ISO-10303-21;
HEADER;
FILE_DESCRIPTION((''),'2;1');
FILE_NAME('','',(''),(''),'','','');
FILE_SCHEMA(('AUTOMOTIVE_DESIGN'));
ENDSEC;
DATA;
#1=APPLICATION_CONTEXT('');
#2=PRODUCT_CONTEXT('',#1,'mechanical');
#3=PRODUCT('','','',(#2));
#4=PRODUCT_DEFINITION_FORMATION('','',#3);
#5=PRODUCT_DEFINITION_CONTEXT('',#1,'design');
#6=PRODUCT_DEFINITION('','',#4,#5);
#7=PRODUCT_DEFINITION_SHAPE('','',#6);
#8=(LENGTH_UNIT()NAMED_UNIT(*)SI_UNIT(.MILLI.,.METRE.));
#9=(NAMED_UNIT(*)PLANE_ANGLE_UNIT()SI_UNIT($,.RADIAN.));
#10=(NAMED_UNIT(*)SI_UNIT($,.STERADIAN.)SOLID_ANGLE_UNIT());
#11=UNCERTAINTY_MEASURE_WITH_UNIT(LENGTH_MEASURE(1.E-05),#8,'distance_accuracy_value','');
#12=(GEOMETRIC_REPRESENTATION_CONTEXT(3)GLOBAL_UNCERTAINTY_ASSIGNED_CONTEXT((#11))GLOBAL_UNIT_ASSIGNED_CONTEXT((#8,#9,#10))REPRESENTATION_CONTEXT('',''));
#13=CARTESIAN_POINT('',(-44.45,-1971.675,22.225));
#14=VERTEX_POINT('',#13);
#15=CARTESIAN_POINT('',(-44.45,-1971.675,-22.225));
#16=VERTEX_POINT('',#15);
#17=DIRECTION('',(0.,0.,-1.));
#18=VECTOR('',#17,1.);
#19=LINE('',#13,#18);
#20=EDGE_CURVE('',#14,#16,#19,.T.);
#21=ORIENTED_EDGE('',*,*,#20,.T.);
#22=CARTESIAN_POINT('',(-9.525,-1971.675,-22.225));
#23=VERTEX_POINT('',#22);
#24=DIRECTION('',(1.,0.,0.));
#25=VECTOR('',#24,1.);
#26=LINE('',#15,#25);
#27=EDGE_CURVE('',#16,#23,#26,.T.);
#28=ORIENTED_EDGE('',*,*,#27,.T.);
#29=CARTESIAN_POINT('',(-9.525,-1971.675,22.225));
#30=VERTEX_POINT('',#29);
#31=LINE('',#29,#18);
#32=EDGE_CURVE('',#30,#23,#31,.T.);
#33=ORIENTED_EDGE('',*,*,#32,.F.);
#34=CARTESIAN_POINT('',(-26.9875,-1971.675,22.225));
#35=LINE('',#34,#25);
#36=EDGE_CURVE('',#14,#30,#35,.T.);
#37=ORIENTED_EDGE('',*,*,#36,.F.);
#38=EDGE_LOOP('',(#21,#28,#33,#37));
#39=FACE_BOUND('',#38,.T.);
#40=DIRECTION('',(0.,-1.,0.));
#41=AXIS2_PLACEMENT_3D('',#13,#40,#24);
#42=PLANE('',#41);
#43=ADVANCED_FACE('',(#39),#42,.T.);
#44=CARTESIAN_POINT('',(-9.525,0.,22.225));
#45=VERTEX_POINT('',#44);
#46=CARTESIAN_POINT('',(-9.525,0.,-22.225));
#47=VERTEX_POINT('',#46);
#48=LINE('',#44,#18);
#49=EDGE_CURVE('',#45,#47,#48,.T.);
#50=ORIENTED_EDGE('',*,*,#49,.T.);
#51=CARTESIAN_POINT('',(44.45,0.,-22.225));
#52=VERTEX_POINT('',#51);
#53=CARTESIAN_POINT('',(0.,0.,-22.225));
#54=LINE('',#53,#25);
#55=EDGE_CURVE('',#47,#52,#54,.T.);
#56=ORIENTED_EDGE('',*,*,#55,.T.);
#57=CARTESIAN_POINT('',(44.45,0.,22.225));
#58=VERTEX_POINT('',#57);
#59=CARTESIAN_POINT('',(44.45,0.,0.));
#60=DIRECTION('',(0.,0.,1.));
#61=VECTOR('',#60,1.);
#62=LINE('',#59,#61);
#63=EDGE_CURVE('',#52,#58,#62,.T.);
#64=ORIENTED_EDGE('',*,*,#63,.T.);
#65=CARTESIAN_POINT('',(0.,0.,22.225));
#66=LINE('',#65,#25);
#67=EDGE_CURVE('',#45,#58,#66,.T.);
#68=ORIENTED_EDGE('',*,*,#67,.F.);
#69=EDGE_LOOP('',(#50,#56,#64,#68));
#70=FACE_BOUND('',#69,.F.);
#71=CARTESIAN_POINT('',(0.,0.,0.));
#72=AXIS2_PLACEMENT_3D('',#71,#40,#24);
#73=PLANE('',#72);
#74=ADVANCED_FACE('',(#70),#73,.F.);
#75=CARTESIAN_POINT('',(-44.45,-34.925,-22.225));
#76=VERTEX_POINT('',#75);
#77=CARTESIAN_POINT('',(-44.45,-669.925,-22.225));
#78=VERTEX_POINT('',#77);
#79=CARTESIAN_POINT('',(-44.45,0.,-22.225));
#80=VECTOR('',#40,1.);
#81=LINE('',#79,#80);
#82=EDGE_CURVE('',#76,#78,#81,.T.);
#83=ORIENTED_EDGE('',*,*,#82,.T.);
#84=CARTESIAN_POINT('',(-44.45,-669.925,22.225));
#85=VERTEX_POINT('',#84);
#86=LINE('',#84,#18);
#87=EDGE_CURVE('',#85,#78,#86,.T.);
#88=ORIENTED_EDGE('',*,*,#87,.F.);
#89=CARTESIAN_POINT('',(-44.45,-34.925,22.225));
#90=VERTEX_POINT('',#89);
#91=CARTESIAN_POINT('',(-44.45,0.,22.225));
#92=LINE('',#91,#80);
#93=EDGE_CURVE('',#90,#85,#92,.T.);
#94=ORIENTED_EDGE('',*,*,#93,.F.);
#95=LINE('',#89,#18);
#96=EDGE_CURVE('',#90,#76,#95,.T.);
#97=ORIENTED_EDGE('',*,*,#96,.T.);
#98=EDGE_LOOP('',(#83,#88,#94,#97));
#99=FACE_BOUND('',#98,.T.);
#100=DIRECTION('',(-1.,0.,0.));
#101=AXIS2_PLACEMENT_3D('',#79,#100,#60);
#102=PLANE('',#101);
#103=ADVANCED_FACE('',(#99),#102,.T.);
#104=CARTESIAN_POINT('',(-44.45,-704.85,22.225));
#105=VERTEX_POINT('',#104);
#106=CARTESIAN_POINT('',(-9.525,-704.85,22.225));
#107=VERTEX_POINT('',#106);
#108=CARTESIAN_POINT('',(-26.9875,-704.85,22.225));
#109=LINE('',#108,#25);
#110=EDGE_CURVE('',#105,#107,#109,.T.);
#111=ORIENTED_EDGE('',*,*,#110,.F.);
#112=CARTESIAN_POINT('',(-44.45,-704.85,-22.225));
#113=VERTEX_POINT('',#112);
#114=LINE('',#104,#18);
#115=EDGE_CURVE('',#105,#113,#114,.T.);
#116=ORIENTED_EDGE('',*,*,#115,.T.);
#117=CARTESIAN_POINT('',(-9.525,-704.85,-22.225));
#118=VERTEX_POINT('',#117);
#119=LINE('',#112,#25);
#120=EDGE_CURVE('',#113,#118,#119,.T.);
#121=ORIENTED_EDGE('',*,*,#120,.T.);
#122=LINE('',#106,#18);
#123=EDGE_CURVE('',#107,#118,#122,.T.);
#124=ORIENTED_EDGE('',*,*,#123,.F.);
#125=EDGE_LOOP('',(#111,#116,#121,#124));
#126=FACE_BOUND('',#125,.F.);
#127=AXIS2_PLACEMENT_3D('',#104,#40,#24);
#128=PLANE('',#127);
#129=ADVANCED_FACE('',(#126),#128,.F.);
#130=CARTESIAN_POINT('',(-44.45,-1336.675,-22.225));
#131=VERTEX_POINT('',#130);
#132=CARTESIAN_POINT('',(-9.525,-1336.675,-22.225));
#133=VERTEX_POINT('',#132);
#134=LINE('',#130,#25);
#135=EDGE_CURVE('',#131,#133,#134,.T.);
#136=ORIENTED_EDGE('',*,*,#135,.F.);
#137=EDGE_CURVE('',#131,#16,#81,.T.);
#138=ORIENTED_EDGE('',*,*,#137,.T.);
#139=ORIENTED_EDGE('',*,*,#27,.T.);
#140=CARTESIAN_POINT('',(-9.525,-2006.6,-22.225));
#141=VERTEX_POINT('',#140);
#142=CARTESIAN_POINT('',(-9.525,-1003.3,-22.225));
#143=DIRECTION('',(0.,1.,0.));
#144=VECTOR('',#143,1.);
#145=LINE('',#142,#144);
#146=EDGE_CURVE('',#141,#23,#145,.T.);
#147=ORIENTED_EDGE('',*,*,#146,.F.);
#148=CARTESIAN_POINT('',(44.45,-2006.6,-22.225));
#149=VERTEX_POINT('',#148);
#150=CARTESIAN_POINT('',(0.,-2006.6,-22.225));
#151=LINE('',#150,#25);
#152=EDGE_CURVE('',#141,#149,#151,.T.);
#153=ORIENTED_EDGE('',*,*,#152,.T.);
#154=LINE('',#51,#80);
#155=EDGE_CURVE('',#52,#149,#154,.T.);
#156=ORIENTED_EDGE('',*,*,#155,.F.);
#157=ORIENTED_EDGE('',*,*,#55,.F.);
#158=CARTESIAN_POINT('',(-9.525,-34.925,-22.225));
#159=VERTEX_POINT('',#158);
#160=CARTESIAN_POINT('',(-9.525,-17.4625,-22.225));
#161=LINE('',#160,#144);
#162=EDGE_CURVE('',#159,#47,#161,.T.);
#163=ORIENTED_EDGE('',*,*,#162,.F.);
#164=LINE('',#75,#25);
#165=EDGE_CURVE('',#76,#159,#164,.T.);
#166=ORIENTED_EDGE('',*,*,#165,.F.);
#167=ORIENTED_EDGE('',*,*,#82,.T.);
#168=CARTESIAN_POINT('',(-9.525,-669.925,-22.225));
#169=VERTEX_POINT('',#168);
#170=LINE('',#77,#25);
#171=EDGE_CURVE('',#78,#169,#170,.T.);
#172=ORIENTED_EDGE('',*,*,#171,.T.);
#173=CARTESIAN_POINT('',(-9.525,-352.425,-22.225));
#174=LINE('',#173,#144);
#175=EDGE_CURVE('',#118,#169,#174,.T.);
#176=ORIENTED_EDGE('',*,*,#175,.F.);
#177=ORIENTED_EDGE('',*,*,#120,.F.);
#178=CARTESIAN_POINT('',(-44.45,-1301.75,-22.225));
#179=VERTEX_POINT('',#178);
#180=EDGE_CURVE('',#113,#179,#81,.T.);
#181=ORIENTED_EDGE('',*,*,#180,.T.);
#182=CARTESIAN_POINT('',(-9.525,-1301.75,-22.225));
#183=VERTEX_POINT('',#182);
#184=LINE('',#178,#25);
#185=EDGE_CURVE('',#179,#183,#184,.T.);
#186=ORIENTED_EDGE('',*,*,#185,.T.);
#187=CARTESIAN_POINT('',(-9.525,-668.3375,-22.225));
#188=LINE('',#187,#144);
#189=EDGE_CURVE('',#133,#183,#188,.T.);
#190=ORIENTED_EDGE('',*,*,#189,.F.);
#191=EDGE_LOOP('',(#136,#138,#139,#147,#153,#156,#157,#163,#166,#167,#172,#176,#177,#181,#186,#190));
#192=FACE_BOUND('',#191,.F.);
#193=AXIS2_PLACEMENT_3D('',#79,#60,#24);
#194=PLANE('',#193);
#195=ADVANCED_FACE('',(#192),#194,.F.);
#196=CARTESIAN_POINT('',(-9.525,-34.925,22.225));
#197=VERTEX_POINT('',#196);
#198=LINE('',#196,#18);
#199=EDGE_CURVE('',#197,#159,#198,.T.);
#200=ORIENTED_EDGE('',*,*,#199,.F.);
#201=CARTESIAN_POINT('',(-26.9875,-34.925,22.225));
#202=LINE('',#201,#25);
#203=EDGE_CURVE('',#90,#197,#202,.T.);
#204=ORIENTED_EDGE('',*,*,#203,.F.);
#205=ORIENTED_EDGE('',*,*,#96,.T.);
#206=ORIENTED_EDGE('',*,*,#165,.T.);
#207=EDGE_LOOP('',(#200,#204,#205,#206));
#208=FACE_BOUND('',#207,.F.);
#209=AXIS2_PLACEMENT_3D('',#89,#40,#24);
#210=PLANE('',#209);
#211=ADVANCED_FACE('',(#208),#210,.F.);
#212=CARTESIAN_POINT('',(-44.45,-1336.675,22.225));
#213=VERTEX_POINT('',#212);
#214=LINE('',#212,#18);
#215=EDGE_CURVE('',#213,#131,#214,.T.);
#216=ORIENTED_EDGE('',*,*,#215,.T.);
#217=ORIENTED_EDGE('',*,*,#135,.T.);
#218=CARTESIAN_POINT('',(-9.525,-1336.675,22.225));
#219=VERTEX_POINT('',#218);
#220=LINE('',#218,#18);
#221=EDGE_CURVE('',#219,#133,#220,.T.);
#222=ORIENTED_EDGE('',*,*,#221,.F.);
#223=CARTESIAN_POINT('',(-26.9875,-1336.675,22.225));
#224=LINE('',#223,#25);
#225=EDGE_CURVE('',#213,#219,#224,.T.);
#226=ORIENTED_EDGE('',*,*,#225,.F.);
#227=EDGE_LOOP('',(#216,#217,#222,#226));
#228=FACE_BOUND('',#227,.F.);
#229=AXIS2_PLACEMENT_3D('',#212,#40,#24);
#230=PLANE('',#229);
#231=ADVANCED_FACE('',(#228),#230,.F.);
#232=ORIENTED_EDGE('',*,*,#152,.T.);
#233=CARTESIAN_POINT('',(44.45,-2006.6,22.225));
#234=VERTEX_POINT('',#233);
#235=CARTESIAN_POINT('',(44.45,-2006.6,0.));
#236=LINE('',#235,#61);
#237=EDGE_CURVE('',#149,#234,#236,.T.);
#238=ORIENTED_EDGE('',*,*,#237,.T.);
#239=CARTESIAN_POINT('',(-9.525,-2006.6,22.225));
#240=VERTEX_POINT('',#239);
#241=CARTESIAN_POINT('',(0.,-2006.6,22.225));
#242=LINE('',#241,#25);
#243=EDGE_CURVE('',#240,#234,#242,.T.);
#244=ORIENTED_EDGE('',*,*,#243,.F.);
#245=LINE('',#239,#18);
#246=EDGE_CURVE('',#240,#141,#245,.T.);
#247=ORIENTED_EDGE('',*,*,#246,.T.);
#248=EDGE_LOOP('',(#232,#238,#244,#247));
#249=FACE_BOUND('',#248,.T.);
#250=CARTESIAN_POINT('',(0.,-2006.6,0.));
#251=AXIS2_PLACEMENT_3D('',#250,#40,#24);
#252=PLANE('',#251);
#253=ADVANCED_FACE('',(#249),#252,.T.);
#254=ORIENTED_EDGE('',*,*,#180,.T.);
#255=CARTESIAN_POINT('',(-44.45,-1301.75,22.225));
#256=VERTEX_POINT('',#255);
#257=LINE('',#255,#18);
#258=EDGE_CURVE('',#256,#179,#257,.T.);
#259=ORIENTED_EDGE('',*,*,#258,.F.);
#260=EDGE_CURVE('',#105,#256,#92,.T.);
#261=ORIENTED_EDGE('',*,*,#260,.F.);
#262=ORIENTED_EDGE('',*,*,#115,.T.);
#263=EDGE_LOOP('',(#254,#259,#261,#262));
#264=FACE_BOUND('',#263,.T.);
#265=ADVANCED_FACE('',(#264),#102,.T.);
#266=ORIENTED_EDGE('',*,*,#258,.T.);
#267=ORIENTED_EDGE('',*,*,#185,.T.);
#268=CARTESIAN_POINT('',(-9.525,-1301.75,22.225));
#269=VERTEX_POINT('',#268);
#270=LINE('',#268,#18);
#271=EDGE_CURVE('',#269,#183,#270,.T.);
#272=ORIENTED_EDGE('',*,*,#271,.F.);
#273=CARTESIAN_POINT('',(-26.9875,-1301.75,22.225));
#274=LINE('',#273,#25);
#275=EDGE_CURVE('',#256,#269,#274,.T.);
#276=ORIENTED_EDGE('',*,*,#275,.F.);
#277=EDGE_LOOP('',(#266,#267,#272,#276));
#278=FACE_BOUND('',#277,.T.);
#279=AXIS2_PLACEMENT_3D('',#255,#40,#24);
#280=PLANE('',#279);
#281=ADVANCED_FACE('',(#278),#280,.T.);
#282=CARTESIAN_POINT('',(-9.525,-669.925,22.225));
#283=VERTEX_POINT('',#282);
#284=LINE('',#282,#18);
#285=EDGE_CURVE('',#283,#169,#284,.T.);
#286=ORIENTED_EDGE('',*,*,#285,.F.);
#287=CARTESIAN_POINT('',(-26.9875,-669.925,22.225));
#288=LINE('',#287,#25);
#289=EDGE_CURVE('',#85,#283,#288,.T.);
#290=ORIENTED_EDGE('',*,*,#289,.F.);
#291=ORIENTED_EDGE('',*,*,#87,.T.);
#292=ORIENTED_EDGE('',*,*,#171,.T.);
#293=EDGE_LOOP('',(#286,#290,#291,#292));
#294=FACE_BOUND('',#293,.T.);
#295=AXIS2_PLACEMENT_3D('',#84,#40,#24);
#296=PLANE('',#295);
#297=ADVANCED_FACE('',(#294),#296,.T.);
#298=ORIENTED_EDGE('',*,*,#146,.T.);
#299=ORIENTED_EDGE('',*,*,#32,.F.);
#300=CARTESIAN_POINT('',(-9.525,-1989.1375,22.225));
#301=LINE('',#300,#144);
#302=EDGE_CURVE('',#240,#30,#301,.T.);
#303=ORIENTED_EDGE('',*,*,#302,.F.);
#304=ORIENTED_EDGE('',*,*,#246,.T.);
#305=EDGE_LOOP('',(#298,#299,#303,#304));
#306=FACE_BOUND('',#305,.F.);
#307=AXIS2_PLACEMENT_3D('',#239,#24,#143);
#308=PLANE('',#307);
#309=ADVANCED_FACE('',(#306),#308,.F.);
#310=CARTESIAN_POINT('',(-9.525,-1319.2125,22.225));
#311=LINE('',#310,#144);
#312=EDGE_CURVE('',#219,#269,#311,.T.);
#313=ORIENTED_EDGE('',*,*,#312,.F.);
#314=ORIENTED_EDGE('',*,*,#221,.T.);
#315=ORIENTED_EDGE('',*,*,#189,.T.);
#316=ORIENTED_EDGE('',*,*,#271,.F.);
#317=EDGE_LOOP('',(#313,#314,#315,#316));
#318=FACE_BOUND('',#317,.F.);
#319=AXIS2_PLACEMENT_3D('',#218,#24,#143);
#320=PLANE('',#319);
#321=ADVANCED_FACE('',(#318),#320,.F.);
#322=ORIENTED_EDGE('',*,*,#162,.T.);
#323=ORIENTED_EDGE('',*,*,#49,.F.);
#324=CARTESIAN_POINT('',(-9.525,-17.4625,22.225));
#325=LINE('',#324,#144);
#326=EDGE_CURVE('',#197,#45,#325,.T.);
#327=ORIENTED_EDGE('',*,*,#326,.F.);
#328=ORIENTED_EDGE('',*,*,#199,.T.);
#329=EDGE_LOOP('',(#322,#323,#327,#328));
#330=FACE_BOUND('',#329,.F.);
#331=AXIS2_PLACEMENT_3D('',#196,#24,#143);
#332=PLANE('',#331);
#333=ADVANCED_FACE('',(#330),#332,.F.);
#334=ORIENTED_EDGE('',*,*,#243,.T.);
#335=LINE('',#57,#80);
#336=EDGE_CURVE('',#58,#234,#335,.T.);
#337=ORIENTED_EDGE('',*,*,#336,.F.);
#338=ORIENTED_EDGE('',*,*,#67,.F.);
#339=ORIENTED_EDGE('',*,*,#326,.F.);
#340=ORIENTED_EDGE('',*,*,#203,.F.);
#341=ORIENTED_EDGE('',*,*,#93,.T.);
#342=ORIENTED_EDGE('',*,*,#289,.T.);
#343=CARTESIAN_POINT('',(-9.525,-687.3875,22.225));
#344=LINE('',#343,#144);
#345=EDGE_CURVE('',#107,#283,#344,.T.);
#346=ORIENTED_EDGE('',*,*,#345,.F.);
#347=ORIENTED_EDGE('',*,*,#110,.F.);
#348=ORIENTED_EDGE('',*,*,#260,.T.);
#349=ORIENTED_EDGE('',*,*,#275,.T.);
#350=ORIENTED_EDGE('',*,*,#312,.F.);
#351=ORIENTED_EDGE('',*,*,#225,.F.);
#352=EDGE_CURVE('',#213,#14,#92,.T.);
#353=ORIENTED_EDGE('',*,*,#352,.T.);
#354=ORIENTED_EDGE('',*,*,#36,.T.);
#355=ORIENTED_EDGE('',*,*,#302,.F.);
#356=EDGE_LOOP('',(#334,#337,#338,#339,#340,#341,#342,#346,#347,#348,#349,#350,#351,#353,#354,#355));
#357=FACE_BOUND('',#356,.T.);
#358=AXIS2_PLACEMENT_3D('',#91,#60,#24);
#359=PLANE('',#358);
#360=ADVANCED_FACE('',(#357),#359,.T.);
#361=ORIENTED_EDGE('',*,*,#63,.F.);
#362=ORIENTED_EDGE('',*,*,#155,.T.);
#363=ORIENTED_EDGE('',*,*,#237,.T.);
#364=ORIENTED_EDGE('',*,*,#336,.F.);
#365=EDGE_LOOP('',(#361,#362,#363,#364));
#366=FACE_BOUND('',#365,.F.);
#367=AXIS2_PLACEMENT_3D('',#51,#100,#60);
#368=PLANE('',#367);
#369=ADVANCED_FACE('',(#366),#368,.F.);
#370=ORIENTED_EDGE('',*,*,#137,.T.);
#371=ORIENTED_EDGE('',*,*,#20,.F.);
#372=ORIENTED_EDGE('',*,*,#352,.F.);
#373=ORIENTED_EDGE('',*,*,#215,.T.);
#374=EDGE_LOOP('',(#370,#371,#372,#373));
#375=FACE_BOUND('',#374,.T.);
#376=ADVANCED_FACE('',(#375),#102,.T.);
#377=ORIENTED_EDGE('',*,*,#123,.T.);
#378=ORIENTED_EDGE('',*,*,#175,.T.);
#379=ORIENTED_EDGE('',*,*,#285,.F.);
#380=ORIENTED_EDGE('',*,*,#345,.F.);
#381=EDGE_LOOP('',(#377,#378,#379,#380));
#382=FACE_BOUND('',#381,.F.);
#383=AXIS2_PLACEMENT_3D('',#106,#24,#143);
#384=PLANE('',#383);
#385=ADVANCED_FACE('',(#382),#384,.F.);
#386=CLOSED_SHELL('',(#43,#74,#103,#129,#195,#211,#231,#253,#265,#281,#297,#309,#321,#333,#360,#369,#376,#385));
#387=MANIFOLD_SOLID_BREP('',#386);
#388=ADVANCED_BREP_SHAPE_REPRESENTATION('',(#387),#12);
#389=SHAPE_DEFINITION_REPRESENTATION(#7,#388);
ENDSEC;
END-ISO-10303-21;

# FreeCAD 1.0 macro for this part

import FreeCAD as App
import Part
import Sketcher
from FreeCAD import Vector
Q = App.Units.Quantity

doc = App.newDocument("Part")
body = doc.addObject("PartDesign::Body", "Body")

# Sketch on XZ plane
sketch1 = doc.addObject("Sketcher::SketchObject", "Sketch")
body.addObject(sketch1)
sketch1.AttachmentSupport = (doc.XZ_Plane, [""])
sketch1.MapMode = "FlatFace"
sketch1.addGeometry([
    Part.LineSegment(Vector(-44.45, 22.225, 0), Vector(-44.45, -22.225, 0)),
    Part.LineSegment(Vector(-44.45, -22.225, 0), Vector(44.45, -22.225, 0)),
    Part.LineSegment(Vector(44.45, -22.225, 0), Vector(44.45, 22.225, 0)),
    Part.LineSegment(Vector(44.45, 22.225, 0), Vector(-44.45, 22.225, 0)),
], False)
sketch1.addConstraint([
    Sketcher.Constraint("Coincident", 0, 2, 1, 1),
    Sketcher.Constraint("Coincident", 1, 2, 2, 1),
    Sketcher.Constraint("Coincident", 2, 2, 3, 1),
    Sketcher.Constraint("Coincident", 3, 2, 0, 1),
    Sketcher.Constraint("Vertical", 0),
    Sketcher.Constraint("Horizontal", 1),
    Sketcher.Constraint("Vertical", 2),
    Sketcher.Constraint("Horizontal", 3),
    Sketcher.Constraint("Symmetric", 0, 2, 2, 2, -1, 1),
    Sketcher.Constraint("DistanceX", 1, 1, 1, 2, Q("3.5 in")),
    Sketcher.Constraint("DistanceY", 0, 2, 0, 1, Q("1.75 in")),
])
pad1 = doc.addObject("PartDesign::Pad", "Pad")
body.addObject(pad1)
pad1.Profile = sketch1
pad1.Length = Q("79 in")

# Sketch on XY plane
sketch2 = doc.addObject("Sketcher::SketchObject", "Sketch001")
body.addObject(sketch2)
sketch2.AttachmentSupport = (doc.XY_Plane, [""])
sketch2.MapMode = "FlatFace"
sketch2.AttachmentOffset = App.Placement(Vector(0, 0, 0.875 * 25.4), App.Rotation())
sketch2.addGeometry([
    Part.LineSegment(Vector(-44.45, 0, 0), Vector(-44.45, -34.925, 0)),  # 0
    Part.LineSegment(Vector(-44.45, -34.925, 0), Vector(-9.525, -34.925, 0)),  # 1
    Part.LineSegment(Vector(-9.525, -34.925, 0), Vector(-9.525, 0, 0)),  # 2
    Part.LineSegment(Vector(-9.525, 0, 0), Vector(-44.45, 0, 0)),  # 3
    Part.LineSegment(Vector(-44.45, -1971.675, 0), Vector(-44.45, -2006.6, 0)),  # 4
    Part.LineSegment(Vector(-44.45, -2006.6, 0), Vector(-9.525, -2006.6, 0)),  # 5
    Part.LineSegment(Vector(-9.525, -2006.6, 0), Vector(-9.525, -1971.675, 0)),  # 6
    Part.LineSegment(Vector(-9.525, -1971.675, 0), Vector(-44.45, -1971.675, 0)),  # 7
    Part.LineSegment(Vector(-44.45, -1301.75, 0), Vector(-44.45, -1336.675, 0)),  # 8
    Part.LineSegment(Vector(-44.45, -1336.675, 0), Vector(-9.525, -1336.675, 0)),  # 9
    Part.LineSegment(Vector(-9.525, -1336.675, 0), Vector(-9.525, -1301.75, 0)),  # 10
    Part.LineSegment(Vector(-9.525, -1301.75, 0), Vector(-44.45, -1301.75, 0)),  # 11
    Part.LineSegment(Vector(-44.45, -669.925, 0), Vector(-44.45, -704.85, 0)),  # 12
    Part.LineSegment(Vector(-44.45, -704.85, 0), Vector(-9.525, -704.85, 0)),  # 13
    Part.LineSegment(Vector(-9.525, -704.85, 0), Vector(-9.525, -669.925, 0)),  # 14
    Part.LineSegment(Vector(-9.525, -669.925, 0), Vector(-44.45, -669.925, 0)),  # 15
], False)
sketch2.addConstraint([
    Sketcher.Constraint("Coincident", 0, 2, 1, 1),
    Sketcher.Constraint("Coincident", 1, 2, 2, 1),
    Sketcher.Constraint("Coincident", 2, 2, 3, 1),
    Sketcher.Constraint("Coincident", 3, 2, 0, 1),
    Sketcher.Constraint("Coincident", 4, 2, 5, 1),
    Sketcher.Constraint("Coincident", 5, 2, 6, 1),
    Sketcher.Constraint("Coincident", 6, 2, 7, 1),
    Sketcher.Constraint("Coincident", 7, 2, 4, 1),
    Sketcher.Constraint("Coincident", 8, 2, 9, 1),
    Sketcher.Constraint("Coincident", 9, 2, 10, 1),
    Sketcher.Constraint("Coincident", 10, 2, 11, 1),
    Sketcher.Constraint("Coincident", 11, 2, 8, 1),
    Sketcher.Constraint("Coincident", 12, 2, 13, 1),
    Sketcher.Constraint("Coincident", 13, 2, 14, 1),
    Sketcher.Constraint("Coincident", 14, 2, 15, 1),
    Sketcher.Constraint("Coincident", 15, 2, 12, 1),
    Sketcher.Constraint("Vertical", 0),
    Sketcher.Constraint("Horizontal", 1),
    Sketcher.Constraint("Vertical", 2),
    Sketcher.Constraint("Horizontal", 3),
    Sketcher.Constraint("Vertical", 4),
    Sketcher.Constraint("Horizontal", 5),
    Sketcher.Constraint("Vertical", 6),
    Sketcher.Constraint("Horizontal", 7),
    Sketcher.Constraint("Vertical", 8),
    Sketcher.Constraint("Horizontal", 9),
    Sketcher.Constraint("Vertical", 10),
    Sketcher.Constraint("Horizontal", 11),
    Sketcher.Constraint("Vertical", 12),
    Sketcher.Constraint("Horizontal", 13),
    Sketcher.Constraint("Vertical", 14),
    Sketcher.Constraint("Horizontal", 15),
    Sketcher.Constraint("PointOnObject", 2, 2, -1),
    Sketcher.Constraint("Vertical", 3, 2, 4, 2),
    Sketcher.Constraint("Vertical", 2, 2, 5, 2),
    Sketcher.Constraint("Vertical", 7, 2, 8, 2),
    Sketcher.Constraint("Vertical", 6, 2, 9, 2),
    Sketcher.Constraint("Vertical", 11, 2, 12, 2),
    Sketcher.Constraint("Vertical", 10, 2, 13, 2),
    Sketcher.Constraint("Equal", 15, 0),
    Sketcher.Constraint("Equal", 2, 4),
    Sketcher.Constraint("Equal", 6, 8),
    Sketcher.Constraint("Equal", 10, 12),
    Sketcher.Constraint("DistanceY", 4, 2, -1, 1, Q("79 in")),
    Sketcher.Constraint("DistanceY", 7, 2, 8, 2, Q("25 in")),
    Sketcher.Constraint("DistanceY", 14, 2, 1, 2, Q("25 in")),
    Sketcher.Constraint("DistanceY", 11, 2, 12, 2, Q("23.5 in")),
    Sketcher.Constraint("DistanceX", 0, 2, -1, 1, Q("1.75 in")),
])
pocket1 = doc.addObject("PartDesign::Pocket", "Pocket")
body.addObject(pocket1)
pocket1.Profile = sketch2
pocket1.Length = Q("2 in")

doc.recompute()
